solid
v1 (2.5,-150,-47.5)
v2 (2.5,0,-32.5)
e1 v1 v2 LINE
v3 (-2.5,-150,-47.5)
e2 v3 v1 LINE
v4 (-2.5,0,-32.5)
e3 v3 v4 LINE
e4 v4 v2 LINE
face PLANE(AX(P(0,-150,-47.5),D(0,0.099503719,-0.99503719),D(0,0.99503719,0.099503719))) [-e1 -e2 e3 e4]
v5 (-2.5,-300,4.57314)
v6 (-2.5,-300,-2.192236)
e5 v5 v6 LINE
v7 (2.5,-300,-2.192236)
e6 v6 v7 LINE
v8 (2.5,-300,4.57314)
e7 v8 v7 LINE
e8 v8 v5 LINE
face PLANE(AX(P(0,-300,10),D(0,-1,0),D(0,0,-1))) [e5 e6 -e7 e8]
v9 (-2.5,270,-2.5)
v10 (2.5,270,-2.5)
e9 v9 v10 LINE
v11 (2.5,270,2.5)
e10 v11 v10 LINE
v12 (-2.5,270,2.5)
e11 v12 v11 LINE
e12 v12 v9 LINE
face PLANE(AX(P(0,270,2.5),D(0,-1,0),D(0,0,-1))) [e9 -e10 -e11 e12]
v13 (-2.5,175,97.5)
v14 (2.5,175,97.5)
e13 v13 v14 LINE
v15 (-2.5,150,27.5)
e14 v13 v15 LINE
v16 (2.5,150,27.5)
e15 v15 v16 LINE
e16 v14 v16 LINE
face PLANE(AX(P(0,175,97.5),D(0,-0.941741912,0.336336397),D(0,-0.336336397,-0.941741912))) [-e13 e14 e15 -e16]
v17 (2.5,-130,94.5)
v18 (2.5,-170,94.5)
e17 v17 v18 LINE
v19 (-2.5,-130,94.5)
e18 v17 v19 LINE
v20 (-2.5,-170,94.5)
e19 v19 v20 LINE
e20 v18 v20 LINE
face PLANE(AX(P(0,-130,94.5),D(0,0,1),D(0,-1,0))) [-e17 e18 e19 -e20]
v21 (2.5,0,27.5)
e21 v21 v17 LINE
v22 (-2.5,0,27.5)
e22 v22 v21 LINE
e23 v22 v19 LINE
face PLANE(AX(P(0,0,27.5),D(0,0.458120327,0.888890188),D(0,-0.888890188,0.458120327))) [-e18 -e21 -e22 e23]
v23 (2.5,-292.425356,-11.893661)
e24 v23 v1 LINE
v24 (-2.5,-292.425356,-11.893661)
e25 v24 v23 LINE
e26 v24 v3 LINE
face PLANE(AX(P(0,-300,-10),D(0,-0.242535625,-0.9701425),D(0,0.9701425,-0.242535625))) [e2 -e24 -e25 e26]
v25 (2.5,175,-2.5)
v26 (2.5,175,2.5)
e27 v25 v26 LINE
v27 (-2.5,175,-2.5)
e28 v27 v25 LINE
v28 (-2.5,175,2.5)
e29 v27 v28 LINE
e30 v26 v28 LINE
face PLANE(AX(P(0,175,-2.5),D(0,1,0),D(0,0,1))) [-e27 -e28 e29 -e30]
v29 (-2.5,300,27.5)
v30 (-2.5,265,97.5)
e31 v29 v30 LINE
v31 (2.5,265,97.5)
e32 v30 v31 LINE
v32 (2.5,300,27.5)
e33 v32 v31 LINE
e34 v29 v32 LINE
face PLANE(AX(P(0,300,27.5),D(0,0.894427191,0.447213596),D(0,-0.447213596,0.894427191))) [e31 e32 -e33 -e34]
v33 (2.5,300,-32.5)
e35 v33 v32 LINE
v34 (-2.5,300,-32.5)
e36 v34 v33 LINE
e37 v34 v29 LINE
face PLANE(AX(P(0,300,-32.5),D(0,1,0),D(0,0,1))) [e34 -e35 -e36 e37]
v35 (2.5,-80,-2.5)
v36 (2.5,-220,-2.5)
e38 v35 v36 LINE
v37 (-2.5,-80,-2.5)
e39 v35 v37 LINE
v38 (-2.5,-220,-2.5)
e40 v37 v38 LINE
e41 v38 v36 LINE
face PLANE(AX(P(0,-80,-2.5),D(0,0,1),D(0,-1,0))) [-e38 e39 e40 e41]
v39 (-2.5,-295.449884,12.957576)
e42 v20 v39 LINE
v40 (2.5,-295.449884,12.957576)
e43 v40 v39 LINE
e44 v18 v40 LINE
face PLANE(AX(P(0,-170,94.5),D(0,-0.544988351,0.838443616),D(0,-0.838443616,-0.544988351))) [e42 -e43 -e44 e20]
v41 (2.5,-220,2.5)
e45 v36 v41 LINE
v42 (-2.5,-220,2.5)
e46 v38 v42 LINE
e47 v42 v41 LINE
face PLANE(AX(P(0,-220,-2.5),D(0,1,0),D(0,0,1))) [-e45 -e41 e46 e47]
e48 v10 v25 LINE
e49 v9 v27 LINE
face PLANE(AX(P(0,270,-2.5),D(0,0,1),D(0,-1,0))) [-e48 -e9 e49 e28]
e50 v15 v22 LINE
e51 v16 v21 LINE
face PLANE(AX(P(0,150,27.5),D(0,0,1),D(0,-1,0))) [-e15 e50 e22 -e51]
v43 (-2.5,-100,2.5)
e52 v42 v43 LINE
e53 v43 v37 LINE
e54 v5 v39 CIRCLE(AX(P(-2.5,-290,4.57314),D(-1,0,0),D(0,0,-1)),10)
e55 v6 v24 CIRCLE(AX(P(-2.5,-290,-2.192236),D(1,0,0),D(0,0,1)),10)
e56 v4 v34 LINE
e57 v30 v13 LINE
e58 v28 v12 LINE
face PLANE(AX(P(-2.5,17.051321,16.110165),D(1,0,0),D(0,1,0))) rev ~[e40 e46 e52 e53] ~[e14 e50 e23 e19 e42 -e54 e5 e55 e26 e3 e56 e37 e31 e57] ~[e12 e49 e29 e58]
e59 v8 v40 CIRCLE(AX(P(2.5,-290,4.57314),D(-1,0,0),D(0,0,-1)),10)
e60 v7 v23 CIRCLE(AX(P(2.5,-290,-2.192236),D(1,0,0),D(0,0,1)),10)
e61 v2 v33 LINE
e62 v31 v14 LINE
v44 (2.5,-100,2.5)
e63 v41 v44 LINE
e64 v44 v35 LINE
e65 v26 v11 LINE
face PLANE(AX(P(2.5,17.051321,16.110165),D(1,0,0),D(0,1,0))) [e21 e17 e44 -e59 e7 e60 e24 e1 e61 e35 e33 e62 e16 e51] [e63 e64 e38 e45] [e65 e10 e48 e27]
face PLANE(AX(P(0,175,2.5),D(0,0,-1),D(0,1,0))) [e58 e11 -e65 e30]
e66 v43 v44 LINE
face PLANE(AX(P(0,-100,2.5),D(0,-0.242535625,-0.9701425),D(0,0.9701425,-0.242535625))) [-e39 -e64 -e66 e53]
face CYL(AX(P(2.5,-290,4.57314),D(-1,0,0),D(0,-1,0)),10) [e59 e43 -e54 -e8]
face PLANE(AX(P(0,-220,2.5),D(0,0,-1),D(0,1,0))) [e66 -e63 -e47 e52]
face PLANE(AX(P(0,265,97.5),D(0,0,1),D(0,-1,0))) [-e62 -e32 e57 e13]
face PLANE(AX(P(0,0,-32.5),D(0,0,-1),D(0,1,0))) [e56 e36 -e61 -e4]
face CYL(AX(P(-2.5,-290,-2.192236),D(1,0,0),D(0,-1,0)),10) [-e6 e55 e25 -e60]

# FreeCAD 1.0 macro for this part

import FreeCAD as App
import Part
import Sketcher
Q = App.Units.Quantity


def edges_at(feature, points):
    """Names of the edges that pass closest to the given points."""
    edges = feature.Shape.Edges
    near = lambda p: min(range(len(edges)), key=lambda i: edges[i].distToShape(Part.Vertex(*p))[0])
    return sorted({f"Edge{near(p) + 1}" for p in points})

doc = App.newDocument("Part")
body = doc.addObject("PartDesign::Body", "Body")

# Sketch on YZ plane
sketch1 = body.newObject("Sketcher::SketchObject", "Sketch")
sketch1.AttachmentSupport = (doc.getObject("YZ_Plane"), [""])
sketch1.MapMode = "FlatFace"
sketch1.addGeometry(Part.LineSegment(App.Vector(-300, 10, 0), App.Vector(-300, -10, 0)), False)
sketch1.addGeometry(Part.LineSegment(App.Vector(-300, -10, 0), App.Vector(-150, -48, 0)), False)
sketch1.addGeometry(Part.LineSegment(App.Vector(-150, -48, 0), App.Vector(0, -32, 0)), False)
sketch1.addGeometry(Part.LineSegment(App.Vector(0, -32, 0), App.Vector(300, -32, 0)), False)
sketch1.addGeometry(Part.LineSegment(App.Vector(300, -32, 0), App.Vector(300, 28, 0)), False)
sketch1.addGeometry(Part.LineSegment(App.Vector(300, 28, 0), App.Vector(265, 98, 0)), False)
sketch1.addGeometry(Part.LineSegment(App.Vector(265, 98, 0), App.Vector(175, 98, 0)), False)
sketch1.addGeometry(Part.LineSegment(App.Vector(175, 98, 0), App.Vector(150, 28, 0)), False)
sketch1.addGeometry(Part.LineSegment(App.Vector(150, 28, 0), App.Vector(0, 28, 0)), False)
sketch1.addGeometry(Part.LineSegment(App.Vector(0, 28, 0), App.Vector(-130, 94, 0)), False)
sketch1.addGeometry(Part.LineSegment(App.Vector(-130, 94, 0), App.Vector(-170, 94, 0)), False)
sketch1.addGeometry(Part.LineSegment(App.Vector(-170, 94, 0), App.Vector(-300, 10, 0)), False)
sketch1.addGeometry(Part.LineSegment(App.Vector(-80, -2, 0), App.Vector(-220, -2, 0)), False)
sketch1.addGeometry(Part.LineSegment(App.Vector(-220, -2, 0), App.Vector(-220, 2, 0)), False)
sketch1.addGeometry(Part.LineSegment(App.Vector(-220, 2, 0), App.Vector(-100, 2, 0)), False)
sketch1.addGeometry(Part.LineSegment(App.Vector(-100, 2, 0), App.Vector(-80, -2, 0)), False)
sketch1.addGeometry(Part.LineSegment(App.Vector(175, 2, 0), App.Vector(270, 2, 0)), False)
sketch1.addGeometry(Part.LineSegment(App.Vector(270, 2, 0), App.Vector(270, -2, 0)), False)
sketch1.addGeometry(Part.LineSegment(App.Vector(270, -2, 0), App.Vector(175, -2, 0)), False)
sketch1.addGeometry(Part.LineSegment(App.Vector(175, -2, 0), App.Vector(175, 2, 0)), False)
sketch1.addConstraint(Sketcher.Constraint("Coincident", 0, 2, 1, 1))
sketch1.addConstraint(Sketcher.Constraint("Coincident", 1, 2, 2, 1))
sketch1.addConstraint(Sketcher.Constraint("Coincident", 2, 2, 3, 1))
sketch1.addConstraint(Sketcher.Constraint("Coincident", 3, 2, 4, 1))
sketch1.addConstraint(Sketcher.Constraint("Coincident", 4, 2, 5, 1))
sketch1.addConstraint(Sketcher.Constraint("Coincident", 5, 2, 6, 1))
sketch1.addConstraint(Sketcher.Constraint("Coincident", 6, 2, 7, 1))
sketch1.addConstraint(Sketcher.Constraint("Coincident", 7, 2, 8, 1))
sketch1.addConstraint(Sketcher.Constraint("Coincident", 8, 2, 9, 1))
sketch1.addConstraint(Sketcher.Constraint("Coincident", 9, 2, 10, 1))
sketch1.addConstraint(Sketcher.Constraint("Coincident", 10, 2, 11, 1))
sketch1.addConstraint(Sketcher.Constraint("Coincident", 11, 2, 0, 1))
sketch1.addConstraint(Sketcher.Constraint("Coincident", 12, 2, 13, 1))
sketch1.addConstraint(Sketcher.Constraint("Coincident", 13, 2, 14, 1))
sketch1.addConstraint(Sketcher.Constraint("Coincident", 14, 2, 15, 1))
sketch1.addConstraint(Sketcher.Constraint("Coincident", 15, 2, 12, 1))
sketch1.addConstraint(Sketcher.Constraint("Coincident", 16, 2, 17, 1))
sketch1.addConstraint(Sketcher.Constraint("Coincident", 17, 2, 18, 1))
sketch1.addConstraint(Sketcher.Constraint("Coincident", 18, 2, 19, 1))
sketch1.addConstraint(Sketcher.Constraint("Coincident", 19, 2, 16, 1))
sketch1.addConstraint(Sketcher.Constraint("Vertical", 0))
sketch1.addConstraint(Sketcher.Constraint("Horizontal", 3))
sketch1.addConstraint(Sketcher.Constraint("Vertical", 4))
sketch1.addConstraint(Sketcher.Constraint("Horizontal", 6))
sketch1.addConstraint(Sketcher.Constraint("Horizontal", 8))
sketch1.addConstraint(Sketcher.Constraint("Horizontal", 10))
sketch1.addConstraint(Sketcher.Constraint("Horizontal", 12))
sketch1.addConstraint(Sketcher.Constraint("Vertical", 13))
sketch1.addConstraint(Sketcher.Constraint("Horizontal", 14))
sketch1.addConstraint(Sketcher.Constraint("Horizontal", 16))
sketch1.addConstraint(Sketcher.Constraint("Vertical", 17))
sketch1.addConstraint(Sketcher.Constraint("Horizontal", 18))
sketch1.addConstraint(Sketcher.Constraint("Vertical", 19))
sketch1.addConstraint(Sketcher.Constraint("PointOnObject", 2, 2, -2))
sketch1.addConstraint(Sketcher.Constraint("PointOnObject", 8, 2, -2))
sketch1.addConstraint(Sketcher.Constraint("Parallel", 1, 15))
sketch1.addConstraint(Sketcher.Constraint("Horizontal", 4, 2, 7, 2))
sketch1.addConstraint(Sketcher.Constraint("Horizontal", 14, 2, 16, 2))
sketch1.addConstraint(Sketcher.Constraint("Horizontal", 15, 2, 17, 2))
sketch1.addConstraint(Sketcher.Constraint("Vertical", 6, 2, 18, 2))
sketch1.addConstraint(Sketcher.Constraint("DistanceX", 3, 1, 3, 2, Q("300 mm")))
sketch1.addConstraint(Sketcher.Constraint("DistanceX", 6, 2, 6, 1, Q("90 mm")))
sketch1.addConstraint(Sketcher.Constraint("DistanceX", 8, 2, 8, 1, Q("150 mm")))
sketch1.addConstraint(Sketcher.Constraint("DistanceX", 10, 2, 10, 1, Q("40 mm")))
sketch1.addConstraint(Sketcher.Constraint("DistanceX", 12, 2, 12, 1, Q("140 mm")))
sketch1.addConstraint(Sketcher.Constraint("DistanceX", 14, 1, 14, 2, Q("120 mm")))
sketch1.addConstraint(Sketcher.Constraint("DistanceX", 16, 1, 16, 2, Q("95 mm")))
sketch1.addConstraint(Sketcher.Constraint("DistanceY", 0, 2, 0, 1, Q("20 mm")))
sketch1.addConstraint(Sketcher.Constraint("DistanceY", 4, 1, 4, 2, Q("60 mm")))
sketch1.addConstraint(Sketcher.Constraint("DistanceY", 13, 1, 13, 2, Q("5 mm")))
sketch1.addConstraint(Sketcher.Constraint("DistanceX", 0, 2, -1, 1, Q("300 mm")))
sketch1.addConstraint(Sketcher.Constraint("DistanceY", 0, 2, -1, 1, Q("10 mm")))
sketch1.addConstraint(Sketcher.Constraint("DistanceX", 1, 2, -1, 1, Q("150 mm")))
sketch1.addConstraint(Sketcher.Constraint("DistanceX", -1, 1, 5, 2, Q("265 mm")))
sketch1.addConstraint(Sketcher.Constraint("DistanceX", 9, 2, -1, 1, Q("130 mm")))
sketch1.addConstraint(Sketcher.Constraint("DistanceX", 12, 2, -1, 1, Q("220 mm")))
sketch1.addConstraint(Sketcher.Constraint("DistanceY", 1, 2, 2, 2, Q("15 mm")))
sketch1.addConstraint(Sketcher.Constraint("DistanceY", 4, 2, 5, 2, Q("70 mm")))
sketch1.addConstraint(Sketcher.Constraint("DistanceY", 1, 2, 9, 2, Q("142 mm")))
sketch1.addConstraint(Sketcher.Constraint("DistanceY", 1, 2, 12, 2, Q("45 mm")))
pad1 = body.newObject("PartDesign::Pad", "Pad")
pad1.Profile = sketch1
pad1.Length = 5
pad1.Midplane = True
doc.recompute()

fillet = body.newObject("PartDesign::Fillet", "Fillet")
fillet.Base = (pad1, edges_at(pad1, [(0, -300, 10)]))
fillet.Radius = 10
doc.recompute()

fillet2 = body.newObject("PartDesign::Fillet", "Fillet001")
fillet2.Base = (fillet, edges_at(fillet, [(0, -300, -10)]))
fillet2.Radius = 10

doc.recompute()
